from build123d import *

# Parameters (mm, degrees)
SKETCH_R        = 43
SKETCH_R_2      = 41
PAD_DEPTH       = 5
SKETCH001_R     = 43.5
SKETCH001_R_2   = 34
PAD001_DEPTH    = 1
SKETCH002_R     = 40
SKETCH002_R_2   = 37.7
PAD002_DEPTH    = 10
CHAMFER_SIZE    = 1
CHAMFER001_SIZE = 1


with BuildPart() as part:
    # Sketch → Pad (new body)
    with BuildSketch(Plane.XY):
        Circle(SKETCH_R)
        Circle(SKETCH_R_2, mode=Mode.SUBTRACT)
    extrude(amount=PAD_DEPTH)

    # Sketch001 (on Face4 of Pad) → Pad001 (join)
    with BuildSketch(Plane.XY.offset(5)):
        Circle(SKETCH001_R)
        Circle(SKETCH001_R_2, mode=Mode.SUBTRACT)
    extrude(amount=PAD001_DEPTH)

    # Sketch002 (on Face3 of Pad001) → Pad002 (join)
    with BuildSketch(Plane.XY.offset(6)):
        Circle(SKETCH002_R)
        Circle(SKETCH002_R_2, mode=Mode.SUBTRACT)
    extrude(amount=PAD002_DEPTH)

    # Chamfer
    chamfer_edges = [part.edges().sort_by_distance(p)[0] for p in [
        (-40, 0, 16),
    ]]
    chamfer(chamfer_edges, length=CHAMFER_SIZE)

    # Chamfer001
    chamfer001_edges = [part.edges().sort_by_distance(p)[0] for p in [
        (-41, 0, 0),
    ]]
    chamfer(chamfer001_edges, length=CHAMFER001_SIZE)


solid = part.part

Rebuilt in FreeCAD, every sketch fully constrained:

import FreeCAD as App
import Part
import Sketcher
Q = App.Units.Quantity


def edges_at(feature, points):
    """Names of the edges that pass closest to the given points."""
    edges = feature.Shape.Edges
    near = lambda p: min(range(len(edges)), key=lambda i: edges[i].distToShape(Part.Vertex(*p))[0])
    return sorted({f"Edge{near(p) + 1}" for p in points})

doc = App.newDocument("Part")
body = doc.addObject("PartDesign::Body", "Body")

sketch1 = body.newObject("Sketcher::SketchObject", "Sketch")
sketch1.AttachmentSupport = (doc.getObject("XY_Plane"), [""])
sketch1.MapMode = "FlatFace"
sketch1.addGeometry(Part.Circle(App.Vector(0, 0, 0), App.Vector(0, 0, 1), 43), False)
sketch1.addGeometry(Part.Circle(App.Vector(0, 0, 0), App.Vector(0, 0, 1), 41), False)
sketch1.addConstraint(Sketcher.Constraint("Coincident", 0, 3, -1, 1))
sketch1.addConstraint(Sketcher.Constraint("Coincident", 1, 3, -1, 1))
sketch1.addConstraint(Sketcher.Constraint("Diameter", 0, Q("86 mm")))
sketch1.addConstraint(Sketcher.Constraint("Diameter", 1, Q("82 mm")))
pad1 = body.newObject("PartDesign::Pad", "Pad")
pad1.Profile = sketch1
pad1.Length = 5

sketch2 = body.newObject("Sketcher::SketchObject", "Sketch001")
sketch2.AttachmentSupport = (doc.getObject("XY_Plane"), [""])
sketch2.MapMode = "FlatFace"
sketch2.AttachmentOffset = App.Placement(App.Vector(0, 0, 5), App.Rotation())
sketch2.addGeometry(Part.Circle(App.Vector(0, 0, 0), App.Vector(0, 0, 1), 44), False)
sketch2.addGeometry(Part.Circle(App.Vector(0, 0, 0), App.Vector(0, 0, 1), 34), False)
sketch2.addConstraint(Sketcher.Constraint("Coincident", 0, 3, -1, 1))
sketch2.addConstraint(Sketcher.Constraint("Coincident", 1, 3, -1, 1))
sketch2.addConstraint(Sketcher.Constraint("Diameter", 0, Q("87 mm")))
sketch2.addConstraint(Sketcher.Constraint("Diameter", 1, Q("68 mm")))
pad2 = body.newObject("PartDesign::Pad", "Pad001")
pad2.Profile = sketch2
pad2.Length = 1

sketch3 = body.newObject("Sketcher::SketchObject", "Sketch002")
sketch3.AttachmentSupport = (doc.getObject("XY_Plane"), [""])
sketch3.MapMode = "FlatFace"
sketch3.AttachmentOffset = App.Placement(App.Vector(0, 0, 6), App.Rotation())
sketch3.addGeometry(Part.Circle(App.Vector(0, 0, 0), App.Vector(0, 0, 1), 40), False)
sketch3.addGeometry(Part.Circle(App.Vector(0, 0, 0), App.Vector(0, 0, 1), 38), False)
sketch3.addConstraint(Sketcher.Constraint("Coincident", 0, 3, -1, 1))
sketch3.addConstraint(Sketcher.Constraint("Coincident", 1, 3, -1, 1))
sketch3.addConstraint(Sketcher.Constraint("Diameter", 0, Q("80 mm")))
sketch3.addConstraint(Sketcher.Constraint("Diameter", 1, Q("75.4 mm")))
pad3 = body.newObject("PartDesign::Pad", "Pad002")
pad3.Profile = sketch3
pad3.Length = 10
doc.recompute()

chamfer = body.newObject("PartDesign::Chamfer", "Chamfer")
chamfer.Base = (pad3, edges_at(pad3, [(-40, 0, 16)]))
chamfer.Size = 1
doc.recompute()

chamfer2 = body.newObject("PartDesign::Chamfer", "Chamfer001")
chamfer2.Base = (chamfer, edges_at(chamfer, [(-41, 0, 0)]))
chamfer2.Size = 1

doc.recompute()
